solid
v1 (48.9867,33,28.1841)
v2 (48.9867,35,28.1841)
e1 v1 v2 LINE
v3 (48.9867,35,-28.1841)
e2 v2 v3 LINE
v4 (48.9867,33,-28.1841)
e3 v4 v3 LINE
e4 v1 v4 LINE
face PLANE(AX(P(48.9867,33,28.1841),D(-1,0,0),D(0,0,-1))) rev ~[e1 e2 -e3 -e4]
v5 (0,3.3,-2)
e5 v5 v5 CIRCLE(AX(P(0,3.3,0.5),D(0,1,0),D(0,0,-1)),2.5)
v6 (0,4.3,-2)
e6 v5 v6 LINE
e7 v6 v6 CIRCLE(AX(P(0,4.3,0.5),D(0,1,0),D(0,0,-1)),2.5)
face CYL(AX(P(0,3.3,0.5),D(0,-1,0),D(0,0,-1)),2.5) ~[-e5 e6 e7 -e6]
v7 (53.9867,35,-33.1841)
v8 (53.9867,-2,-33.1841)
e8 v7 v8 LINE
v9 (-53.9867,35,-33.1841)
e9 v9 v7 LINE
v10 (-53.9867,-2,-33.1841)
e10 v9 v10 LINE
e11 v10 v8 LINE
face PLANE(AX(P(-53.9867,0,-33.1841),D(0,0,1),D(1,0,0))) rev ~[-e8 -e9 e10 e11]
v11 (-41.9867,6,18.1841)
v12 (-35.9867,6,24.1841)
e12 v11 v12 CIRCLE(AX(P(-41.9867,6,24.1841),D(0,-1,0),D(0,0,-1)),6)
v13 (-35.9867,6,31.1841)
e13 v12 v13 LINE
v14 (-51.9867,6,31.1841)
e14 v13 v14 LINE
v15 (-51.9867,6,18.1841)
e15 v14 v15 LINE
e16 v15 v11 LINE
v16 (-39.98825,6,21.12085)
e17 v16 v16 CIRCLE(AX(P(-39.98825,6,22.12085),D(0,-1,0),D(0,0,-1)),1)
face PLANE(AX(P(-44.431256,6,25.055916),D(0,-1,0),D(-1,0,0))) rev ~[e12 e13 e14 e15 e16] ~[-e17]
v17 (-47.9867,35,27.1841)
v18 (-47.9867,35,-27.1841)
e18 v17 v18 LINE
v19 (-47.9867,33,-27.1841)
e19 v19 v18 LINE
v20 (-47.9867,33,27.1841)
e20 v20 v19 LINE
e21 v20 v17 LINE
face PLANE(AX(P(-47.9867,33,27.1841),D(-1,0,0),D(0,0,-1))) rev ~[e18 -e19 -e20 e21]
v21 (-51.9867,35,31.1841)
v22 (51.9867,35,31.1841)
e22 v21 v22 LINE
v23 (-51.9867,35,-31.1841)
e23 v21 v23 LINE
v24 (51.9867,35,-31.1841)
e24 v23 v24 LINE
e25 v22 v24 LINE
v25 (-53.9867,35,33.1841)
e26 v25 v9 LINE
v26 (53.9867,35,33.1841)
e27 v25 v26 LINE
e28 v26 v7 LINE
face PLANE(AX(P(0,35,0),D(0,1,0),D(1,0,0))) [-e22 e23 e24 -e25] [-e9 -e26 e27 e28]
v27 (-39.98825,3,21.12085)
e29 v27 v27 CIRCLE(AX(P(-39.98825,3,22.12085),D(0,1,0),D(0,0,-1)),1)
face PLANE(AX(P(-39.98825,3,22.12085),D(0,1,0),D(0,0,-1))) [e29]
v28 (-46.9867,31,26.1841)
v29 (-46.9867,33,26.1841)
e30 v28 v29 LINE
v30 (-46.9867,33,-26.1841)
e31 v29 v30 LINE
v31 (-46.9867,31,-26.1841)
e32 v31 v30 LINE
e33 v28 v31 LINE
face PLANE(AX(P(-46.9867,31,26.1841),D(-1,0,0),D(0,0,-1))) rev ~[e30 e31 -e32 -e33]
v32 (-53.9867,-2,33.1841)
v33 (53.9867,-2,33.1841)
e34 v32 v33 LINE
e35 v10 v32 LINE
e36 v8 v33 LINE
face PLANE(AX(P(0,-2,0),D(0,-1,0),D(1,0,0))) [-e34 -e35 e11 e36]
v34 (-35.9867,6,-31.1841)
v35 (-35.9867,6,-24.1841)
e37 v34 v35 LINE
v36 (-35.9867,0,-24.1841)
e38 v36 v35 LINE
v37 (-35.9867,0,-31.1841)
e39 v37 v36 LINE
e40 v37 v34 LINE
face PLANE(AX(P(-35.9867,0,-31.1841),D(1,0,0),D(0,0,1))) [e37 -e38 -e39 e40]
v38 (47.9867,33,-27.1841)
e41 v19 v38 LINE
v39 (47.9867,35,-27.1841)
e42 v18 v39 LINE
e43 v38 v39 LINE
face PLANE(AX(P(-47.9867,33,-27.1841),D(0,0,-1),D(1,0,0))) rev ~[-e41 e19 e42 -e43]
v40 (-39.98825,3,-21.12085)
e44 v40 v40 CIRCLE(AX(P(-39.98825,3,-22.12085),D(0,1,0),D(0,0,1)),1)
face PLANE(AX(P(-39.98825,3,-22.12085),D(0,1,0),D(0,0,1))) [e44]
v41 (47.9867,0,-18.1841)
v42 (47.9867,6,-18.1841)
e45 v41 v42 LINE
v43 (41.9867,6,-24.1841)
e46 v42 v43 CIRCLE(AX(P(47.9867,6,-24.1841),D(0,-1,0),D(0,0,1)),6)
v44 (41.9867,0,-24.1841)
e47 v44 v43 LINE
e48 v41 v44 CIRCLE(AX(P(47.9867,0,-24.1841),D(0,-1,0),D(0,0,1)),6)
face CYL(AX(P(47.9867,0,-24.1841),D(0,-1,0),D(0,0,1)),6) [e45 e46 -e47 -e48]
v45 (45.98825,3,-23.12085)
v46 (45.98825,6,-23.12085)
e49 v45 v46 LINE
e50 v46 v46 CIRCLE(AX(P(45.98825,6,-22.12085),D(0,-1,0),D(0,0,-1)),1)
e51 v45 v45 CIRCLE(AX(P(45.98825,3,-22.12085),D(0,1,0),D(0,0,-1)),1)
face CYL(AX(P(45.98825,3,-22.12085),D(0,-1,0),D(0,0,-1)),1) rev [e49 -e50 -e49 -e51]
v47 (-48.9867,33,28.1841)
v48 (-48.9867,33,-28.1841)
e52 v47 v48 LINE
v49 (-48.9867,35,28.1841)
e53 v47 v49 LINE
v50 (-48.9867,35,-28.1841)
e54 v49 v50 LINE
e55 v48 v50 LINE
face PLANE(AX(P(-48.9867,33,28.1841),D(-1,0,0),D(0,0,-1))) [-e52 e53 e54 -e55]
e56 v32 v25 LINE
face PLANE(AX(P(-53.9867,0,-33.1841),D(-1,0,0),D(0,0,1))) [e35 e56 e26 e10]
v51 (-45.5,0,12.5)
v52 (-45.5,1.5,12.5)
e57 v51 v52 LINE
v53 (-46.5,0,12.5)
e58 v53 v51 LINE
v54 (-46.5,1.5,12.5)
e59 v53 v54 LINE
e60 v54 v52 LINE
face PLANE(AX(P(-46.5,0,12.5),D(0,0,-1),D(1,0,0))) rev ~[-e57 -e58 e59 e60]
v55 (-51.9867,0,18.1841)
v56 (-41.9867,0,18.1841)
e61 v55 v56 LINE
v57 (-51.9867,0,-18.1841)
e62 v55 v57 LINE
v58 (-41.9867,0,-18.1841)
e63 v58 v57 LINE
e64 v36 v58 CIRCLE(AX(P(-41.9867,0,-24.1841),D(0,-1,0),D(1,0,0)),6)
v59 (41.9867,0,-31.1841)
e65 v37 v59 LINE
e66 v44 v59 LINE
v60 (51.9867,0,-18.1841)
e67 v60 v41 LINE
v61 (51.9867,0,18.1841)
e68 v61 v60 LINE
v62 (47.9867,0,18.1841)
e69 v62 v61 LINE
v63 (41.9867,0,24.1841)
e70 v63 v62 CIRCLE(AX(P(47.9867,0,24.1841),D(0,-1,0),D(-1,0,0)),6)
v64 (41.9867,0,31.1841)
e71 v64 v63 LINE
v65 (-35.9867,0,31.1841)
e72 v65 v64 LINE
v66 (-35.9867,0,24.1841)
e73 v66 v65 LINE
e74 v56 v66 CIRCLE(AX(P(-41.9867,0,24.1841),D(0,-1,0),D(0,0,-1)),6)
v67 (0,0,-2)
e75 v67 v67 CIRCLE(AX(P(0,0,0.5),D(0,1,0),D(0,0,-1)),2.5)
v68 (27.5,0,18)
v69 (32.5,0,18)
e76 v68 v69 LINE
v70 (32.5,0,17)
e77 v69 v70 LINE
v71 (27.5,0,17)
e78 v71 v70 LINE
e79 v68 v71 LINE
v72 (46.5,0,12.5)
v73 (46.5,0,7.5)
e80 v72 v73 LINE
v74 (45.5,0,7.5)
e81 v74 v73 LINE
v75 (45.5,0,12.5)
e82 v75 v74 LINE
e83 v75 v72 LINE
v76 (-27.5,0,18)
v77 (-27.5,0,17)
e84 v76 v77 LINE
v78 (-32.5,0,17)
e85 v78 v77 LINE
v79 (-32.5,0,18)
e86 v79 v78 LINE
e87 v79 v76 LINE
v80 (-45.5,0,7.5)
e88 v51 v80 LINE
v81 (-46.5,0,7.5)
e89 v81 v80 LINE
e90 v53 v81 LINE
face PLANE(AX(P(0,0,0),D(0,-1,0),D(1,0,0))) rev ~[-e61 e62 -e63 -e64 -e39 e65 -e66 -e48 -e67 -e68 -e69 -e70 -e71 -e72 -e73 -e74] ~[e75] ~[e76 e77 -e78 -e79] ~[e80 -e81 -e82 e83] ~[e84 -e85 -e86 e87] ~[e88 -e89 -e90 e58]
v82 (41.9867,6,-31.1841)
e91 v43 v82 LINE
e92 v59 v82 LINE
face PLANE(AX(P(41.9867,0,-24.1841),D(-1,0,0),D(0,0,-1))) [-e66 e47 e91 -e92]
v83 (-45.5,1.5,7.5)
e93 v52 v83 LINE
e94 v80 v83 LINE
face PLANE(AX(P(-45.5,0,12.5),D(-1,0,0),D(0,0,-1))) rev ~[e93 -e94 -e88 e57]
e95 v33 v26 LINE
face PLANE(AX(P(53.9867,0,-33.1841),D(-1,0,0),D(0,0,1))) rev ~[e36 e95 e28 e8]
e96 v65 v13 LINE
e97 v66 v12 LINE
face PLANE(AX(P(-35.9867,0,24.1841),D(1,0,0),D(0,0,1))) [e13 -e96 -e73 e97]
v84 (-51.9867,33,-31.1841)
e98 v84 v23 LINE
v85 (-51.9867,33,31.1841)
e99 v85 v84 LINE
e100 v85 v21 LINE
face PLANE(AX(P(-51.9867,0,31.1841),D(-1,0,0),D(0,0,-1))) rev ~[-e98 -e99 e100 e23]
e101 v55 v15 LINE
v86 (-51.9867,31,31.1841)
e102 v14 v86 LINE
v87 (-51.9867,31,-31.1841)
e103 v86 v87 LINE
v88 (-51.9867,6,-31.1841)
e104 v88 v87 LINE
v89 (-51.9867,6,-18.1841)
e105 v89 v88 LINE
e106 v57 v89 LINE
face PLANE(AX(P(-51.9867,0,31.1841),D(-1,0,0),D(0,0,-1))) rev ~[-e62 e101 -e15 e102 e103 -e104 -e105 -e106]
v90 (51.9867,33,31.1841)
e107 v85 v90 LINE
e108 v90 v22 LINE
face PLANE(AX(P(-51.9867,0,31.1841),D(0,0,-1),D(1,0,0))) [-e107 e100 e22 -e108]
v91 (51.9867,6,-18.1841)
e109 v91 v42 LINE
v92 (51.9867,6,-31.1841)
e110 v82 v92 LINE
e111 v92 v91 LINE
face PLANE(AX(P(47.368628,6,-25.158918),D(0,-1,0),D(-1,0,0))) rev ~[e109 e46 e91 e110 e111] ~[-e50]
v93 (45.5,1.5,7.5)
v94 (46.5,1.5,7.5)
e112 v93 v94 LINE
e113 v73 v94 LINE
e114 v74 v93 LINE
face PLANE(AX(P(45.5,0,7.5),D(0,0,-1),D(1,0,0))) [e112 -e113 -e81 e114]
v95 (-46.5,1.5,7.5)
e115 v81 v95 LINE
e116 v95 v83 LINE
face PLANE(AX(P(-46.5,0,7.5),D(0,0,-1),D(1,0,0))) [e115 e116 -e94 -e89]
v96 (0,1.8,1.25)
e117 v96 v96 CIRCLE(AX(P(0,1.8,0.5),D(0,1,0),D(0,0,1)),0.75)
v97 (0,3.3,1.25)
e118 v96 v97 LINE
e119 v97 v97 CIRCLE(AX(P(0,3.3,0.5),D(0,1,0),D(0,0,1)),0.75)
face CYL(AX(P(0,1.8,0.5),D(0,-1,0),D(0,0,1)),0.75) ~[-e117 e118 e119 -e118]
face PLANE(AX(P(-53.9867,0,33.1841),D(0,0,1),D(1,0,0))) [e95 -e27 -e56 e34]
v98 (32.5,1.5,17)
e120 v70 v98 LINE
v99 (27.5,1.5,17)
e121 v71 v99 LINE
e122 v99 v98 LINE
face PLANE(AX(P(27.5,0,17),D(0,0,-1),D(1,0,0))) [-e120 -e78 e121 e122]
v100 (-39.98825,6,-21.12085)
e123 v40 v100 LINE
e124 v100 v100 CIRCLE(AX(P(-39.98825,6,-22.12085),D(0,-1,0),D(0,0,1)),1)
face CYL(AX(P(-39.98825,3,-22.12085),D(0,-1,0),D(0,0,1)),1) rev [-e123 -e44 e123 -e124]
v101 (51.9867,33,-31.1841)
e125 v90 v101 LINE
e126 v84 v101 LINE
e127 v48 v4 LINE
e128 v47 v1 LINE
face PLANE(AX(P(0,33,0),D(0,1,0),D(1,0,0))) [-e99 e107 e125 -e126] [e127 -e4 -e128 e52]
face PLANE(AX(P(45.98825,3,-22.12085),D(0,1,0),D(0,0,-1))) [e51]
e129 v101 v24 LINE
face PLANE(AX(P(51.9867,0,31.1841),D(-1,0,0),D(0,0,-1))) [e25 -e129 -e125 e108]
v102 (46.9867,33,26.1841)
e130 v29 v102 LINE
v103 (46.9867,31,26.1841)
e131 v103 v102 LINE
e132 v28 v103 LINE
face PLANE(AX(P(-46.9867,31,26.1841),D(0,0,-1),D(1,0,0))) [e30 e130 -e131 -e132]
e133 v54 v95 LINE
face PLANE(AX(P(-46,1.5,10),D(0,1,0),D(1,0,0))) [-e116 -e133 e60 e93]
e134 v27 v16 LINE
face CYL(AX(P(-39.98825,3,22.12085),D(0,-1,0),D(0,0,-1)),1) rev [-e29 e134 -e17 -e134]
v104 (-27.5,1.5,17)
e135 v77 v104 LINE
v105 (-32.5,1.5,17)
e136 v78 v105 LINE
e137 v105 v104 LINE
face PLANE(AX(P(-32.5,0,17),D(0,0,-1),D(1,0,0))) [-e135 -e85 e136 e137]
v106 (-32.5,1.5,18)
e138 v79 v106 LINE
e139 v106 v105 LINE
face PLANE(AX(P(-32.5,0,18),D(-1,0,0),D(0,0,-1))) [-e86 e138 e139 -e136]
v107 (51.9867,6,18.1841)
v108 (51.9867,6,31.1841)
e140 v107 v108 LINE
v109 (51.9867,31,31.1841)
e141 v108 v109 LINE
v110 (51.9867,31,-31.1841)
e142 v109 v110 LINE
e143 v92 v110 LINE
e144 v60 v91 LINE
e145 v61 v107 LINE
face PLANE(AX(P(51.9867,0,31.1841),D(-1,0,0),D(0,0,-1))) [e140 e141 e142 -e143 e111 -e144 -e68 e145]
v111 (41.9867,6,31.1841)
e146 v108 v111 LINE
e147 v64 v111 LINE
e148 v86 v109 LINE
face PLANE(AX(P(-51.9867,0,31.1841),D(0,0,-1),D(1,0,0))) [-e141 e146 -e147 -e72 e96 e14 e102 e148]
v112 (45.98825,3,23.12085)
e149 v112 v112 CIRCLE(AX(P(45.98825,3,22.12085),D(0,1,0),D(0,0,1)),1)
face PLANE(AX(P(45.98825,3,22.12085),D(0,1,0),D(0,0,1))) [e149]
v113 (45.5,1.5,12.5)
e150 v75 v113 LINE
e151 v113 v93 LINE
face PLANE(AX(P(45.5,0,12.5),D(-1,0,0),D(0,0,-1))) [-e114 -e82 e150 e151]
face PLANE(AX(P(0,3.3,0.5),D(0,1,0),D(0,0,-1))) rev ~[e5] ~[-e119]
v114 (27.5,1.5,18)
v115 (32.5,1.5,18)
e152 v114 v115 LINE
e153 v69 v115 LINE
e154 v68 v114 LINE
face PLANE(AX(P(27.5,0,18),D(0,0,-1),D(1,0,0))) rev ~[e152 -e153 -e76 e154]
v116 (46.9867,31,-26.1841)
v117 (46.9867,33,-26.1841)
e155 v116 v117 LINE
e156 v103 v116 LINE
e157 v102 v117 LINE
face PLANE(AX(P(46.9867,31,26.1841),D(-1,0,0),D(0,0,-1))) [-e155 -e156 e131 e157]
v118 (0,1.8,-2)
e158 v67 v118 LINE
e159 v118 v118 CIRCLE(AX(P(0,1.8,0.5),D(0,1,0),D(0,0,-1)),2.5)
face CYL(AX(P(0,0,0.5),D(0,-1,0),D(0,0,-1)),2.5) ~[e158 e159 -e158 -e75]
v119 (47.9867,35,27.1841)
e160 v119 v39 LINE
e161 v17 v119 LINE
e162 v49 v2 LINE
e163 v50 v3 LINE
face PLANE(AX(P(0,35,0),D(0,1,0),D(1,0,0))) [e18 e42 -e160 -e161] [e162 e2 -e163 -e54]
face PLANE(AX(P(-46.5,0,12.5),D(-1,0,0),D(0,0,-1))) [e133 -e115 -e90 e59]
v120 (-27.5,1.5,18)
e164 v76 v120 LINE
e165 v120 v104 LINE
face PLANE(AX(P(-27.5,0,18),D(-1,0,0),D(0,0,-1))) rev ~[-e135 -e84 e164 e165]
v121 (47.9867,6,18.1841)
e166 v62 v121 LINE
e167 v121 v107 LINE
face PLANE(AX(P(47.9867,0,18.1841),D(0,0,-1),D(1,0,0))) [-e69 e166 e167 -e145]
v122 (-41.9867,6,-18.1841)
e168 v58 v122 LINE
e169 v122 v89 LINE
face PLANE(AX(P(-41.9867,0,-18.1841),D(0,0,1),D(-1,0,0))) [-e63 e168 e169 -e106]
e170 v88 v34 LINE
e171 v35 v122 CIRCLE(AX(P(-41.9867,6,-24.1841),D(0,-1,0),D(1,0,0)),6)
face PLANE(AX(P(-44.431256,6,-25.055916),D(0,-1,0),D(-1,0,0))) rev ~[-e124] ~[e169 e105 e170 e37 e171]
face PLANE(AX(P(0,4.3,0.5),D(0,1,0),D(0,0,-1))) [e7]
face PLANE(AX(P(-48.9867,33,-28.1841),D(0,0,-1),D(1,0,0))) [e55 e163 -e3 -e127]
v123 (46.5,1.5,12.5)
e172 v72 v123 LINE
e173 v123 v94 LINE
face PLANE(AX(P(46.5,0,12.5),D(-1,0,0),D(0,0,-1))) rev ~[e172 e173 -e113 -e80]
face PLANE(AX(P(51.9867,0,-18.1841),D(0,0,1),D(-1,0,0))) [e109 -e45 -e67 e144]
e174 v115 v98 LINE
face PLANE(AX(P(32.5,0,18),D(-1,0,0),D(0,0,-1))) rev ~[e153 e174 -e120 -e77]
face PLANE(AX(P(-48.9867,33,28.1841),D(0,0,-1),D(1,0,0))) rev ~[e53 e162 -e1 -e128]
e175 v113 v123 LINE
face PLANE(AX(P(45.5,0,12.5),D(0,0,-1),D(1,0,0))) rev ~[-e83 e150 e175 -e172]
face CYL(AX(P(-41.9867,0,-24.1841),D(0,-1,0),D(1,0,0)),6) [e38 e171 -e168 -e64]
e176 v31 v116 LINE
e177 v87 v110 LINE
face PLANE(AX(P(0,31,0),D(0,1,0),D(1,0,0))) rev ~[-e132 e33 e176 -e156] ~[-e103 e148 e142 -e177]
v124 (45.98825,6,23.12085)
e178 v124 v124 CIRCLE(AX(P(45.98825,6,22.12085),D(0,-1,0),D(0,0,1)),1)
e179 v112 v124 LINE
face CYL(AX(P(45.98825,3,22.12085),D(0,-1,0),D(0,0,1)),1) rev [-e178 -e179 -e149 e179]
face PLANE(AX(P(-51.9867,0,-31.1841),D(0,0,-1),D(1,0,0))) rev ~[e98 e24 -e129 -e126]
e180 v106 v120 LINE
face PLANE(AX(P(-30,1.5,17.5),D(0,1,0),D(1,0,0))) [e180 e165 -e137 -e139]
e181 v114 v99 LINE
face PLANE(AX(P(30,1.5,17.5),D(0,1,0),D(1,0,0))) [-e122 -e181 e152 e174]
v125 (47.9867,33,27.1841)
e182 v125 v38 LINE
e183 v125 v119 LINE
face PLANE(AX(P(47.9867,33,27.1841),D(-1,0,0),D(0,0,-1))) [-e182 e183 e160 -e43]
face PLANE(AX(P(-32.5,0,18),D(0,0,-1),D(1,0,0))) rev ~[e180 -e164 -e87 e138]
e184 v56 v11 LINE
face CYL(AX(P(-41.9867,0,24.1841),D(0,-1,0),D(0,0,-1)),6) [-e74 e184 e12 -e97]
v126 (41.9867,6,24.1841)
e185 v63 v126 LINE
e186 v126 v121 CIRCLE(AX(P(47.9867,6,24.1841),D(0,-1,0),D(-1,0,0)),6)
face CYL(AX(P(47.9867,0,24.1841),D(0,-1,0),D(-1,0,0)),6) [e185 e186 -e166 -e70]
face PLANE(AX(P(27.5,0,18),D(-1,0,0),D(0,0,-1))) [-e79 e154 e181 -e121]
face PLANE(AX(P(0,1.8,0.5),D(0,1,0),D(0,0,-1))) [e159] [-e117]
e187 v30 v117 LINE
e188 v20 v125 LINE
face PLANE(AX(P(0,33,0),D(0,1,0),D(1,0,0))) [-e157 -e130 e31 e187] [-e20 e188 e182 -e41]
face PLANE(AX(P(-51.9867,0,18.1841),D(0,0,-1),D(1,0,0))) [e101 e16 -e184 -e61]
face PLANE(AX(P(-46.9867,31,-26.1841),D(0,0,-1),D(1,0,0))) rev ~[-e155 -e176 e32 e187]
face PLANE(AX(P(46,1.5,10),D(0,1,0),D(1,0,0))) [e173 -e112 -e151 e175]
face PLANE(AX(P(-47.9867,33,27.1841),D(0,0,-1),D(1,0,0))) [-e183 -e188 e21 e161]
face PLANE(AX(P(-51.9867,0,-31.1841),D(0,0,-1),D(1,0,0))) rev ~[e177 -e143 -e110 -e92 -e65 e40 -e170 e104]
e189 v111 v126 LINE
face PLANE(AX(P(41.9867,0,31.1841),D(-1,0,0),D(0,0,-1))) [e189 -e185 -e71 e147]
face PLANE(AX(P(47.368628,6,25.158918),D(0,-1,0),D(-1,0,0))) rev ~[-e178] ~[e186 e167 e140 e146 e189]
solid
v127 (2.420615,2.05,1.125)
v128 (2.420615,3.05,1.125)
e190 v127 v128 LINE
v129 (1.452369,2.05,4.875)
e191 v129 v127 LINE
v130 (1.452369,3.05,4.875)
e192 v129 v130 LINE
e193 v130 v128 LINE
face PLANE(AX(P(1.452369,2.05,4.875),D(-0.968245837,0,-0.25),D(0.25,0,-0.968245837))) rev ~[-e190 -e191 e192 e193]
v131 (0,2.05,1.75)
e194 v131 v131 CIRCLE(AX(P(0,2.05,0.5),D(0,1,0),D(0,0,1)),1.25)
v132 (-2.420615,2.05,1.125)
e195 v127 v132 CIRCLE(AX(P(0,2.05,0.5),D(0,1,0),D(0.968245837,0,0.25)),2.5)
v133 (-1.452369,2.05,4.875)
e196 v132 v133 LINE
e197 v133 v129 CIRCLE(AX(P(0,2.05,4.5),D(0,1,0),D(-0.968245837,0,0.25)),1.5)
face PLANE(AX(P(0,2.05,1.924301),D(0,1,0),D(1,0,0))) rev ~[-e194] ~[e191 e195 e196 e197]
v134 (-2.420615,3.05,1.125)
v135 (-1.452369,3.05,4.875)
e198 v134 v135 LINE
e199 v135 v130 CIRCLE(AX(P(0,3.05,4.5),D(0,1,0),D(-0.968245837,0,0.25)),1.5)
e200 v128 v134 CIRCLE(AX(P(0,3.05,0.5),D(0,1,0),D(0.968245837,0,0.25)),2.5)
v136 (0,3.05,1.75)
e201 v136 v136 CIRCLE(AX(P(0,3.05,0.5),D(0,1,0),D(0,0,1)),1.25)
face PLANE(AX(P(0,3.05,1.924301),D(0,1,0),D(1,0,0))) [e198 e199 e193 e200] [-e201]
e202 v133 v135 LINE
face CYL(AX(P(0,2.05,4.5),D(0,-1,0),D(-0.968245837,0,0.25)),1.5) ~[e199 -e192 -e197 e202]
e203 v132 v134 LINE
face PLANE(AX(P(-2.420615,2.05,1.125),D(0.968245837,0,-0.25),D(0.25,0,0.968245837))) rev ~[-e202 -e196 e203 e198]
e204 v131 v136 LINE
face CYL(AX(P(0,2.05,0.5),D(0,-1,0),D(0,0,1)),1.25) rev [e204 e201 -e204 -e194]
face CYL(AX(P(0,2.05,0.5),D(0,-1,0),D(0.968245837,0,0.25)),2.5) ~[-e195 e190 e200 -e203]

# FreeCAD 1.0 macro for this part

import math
import FreeCAD as App
import Part
import Sketcher

V = App.Vector

doc = App.newDocument("Part")
body = doc.addObject("PartDesign::Body", "Body")

# Sketch on XZ plane
sketch1 = doc.addObject("Sketcher::SketchObject", "Sketch")
body.addObject(sketch1)
sketch1.AttachmentSupport = (doc.XZ_Plane, [""])
sketch1.MapMode = "FlatFace"
sketch1.addGeometry([
    Part.LineSegment(V(-53.9867, -33.1841, 0), V(-53.9867, 33.1841, 0)),  # 0
    Part.LineSegment(V(-53.9867, 33.1841, 0), V(53.9867, 33.1841, 0)),  # 1
    Part.LineSegment(V(53.9867, 33.1841, 0), V(53.9867, -33.1841, 0)),  # 2
    Part.LineSegment(V(53.9867, -33.1841, 0), V(-53.9867, -33.1841, 0)),  # 3
    Part.LineSegment(V(51.9867, 31.1841, 0), V(-51.9867, 31.1841, 0)),  # 4
    Part.LineSegment(V(-51.9867, 31.1841, 0), V(-51.9867, -31.1841, 0)),  # 5
    Part.LineSegment(V(-51.9867, -31.1841, 0), V(51.9867, -31.1841, 0)),  # 6
    Part.LineSegment(V(51.9867, -31.1841, 0), V(51.9867, 31.1841, 0)),  # 7
], False)
sketch1.addConstraint([
    Sketcher.Constraint("Coincident", 0, 2, 1, 1),
    Sketcher.Constraint("Coincident", 1, 2, 2, 1),
    Sketcher.Constraint("Coincident", 2, 2, 3, 1),
    Sketcher.Constraint("Coincident", 3, 2, 0, 1),
    Sketcher.Constraint("Coincident", 4, 2, 5, 1),
    Sketcher.Constraint("Coincident", 5, 2, 6, 1),
    Sketcher.Constraint("Coincident", 6, 2, 7, 1),
    Sketcher.Constraint("Coincident", 7, 2, 4, 1),
    Sketcher.Constraint("Vertical", 0),
    Sketcher.Constraint("Horizontal", 1),
    Sketcher.Constraint("Vertical", 2),
    Sketcher.Constraint("Horizontal", 3),
    Sketcher.Constraint("Horizontal", 4),
    Sketcher.Constraint("Vertical", 5),
    Sketcher.Constraint("Horizontal", 6),
    Sketcher.Constraint("Vertical", 7),
    Sketcher.Constraint("Symmetric", 0, 2, 2, 2, -1, 1),
    Sketcher.Constraint("Symmetric", 4, 2, 6, 2, -1, 1),
    Sketcher.Constraint("DistanceX", 0, 2, 4, 2, 2.0),
    Sketcher.Constraint("DistanceY", 4, 2, 0, 2, 2.0),
    Sketcher.Constraint("DistanceX", 1, 1, 1, 2, 107.9734),
    Sketcher.Constraint("DistanceY", 0, 1, 0, 2, 66.3682),
])
pad1 = doc.addObject("PartDesign::Pad", "Pad")
body.addObject(pad1)
pad1.Profile = sketch1
pad1.Length = 35
pad1.Reversed = True

# Sketch on XZ plane
sketch2 = doc.addObject("Sketcher::SketchObject", "Sketch001")
body.addObject(sketch2)
sketch2.AttachmentSupport = (doc.XZ_Plane, [""])
sketch2.MapMode = "FlatFace"
sketch2.addGeometry([
    Part.LineSegment(V(-53.9867, 33.1841, 0), V(-53.9867, -33.1841, 0)),
    Part.LineSegment(V(-53.9867, -33.1841, 0), V(53.9867, -33.1841, 0)),
    Part.LineSegment(V(53.9867, -33.1841, 0), V(53.9867, 33.1841, 0)),
    Part.LineSegment(V(53.9867, 33.1841, 0), V(-53.9867, 33.1841, 0)),
], False)
sketch2.addConstraint([
    Sketcher.Constraint("Coincident", 0, 2, 1, 1),
    Sketcher.Constraint("Coincident", 1, 2, 2, 1),
    Sketcher.Constraint("Coincident", 2, 2, 3, 1),
    Sketcher.Constraint("Coincident", 3, 2, 0, 1),
    Sketcher.Constraint("Vertical", 0),
    Sketcher.Constraint("Horizontal", 1),
    Sketcher.Constraint("Vertical", 2),
    Sketcher.Constraint("Horizontal", 3),
    Sketcher.Constraint("Symmetric", 0, 2, 2, 2, -1, 1),
    Sketcher.Constraint("DistanceX", 1, 1, 1, 2, 107.9734),
    Sketcher.Constraint("DistanceY", 0, 2, 0, 1, 66.3682),
])
pad2 = doc.addObject("PartDesign::Pad", "Pad001")
body.addObject(pad2)
pad2.Profile = sketch2
pad2.Length = 2

# Sketch on XZ plane
sketch3 = doc.addObject("Sketcher::SketchObject", "Sketch002")
body.addObject(sketch3)
sketch3.AttachmentSupport = (doc.XZ_Plane, [""])
sketch3.MapMode = "FlatFace"
sketch3.addGeometry([
    Part.LineSegment(V(-51.9867, -31.1841, 0), V(-51.9867, -18.1841, 0)),  # 0
    Part.LineSegment(V(-51.9867, -18.1841, 0), V(-41.9867, -18.1841, 0)),  # 1
    Part.ArcOfCircle(Part.Circle(V(-41.9867, -24.1841, 0), V(0, 0, 1), 6), math.radians(0), math.radians(90)),  # 2
    Part.LineSegment(V(-35.9867, -24.1841, 0), V(-35.9867, -31.1841, 0)),  # 3
    Part.LineSegment(V(-35.9867, -31.1841, 0), V(-51.9867, -31.1841, 0)),  # 4
    Part.LineSegment(V(47.9867, -18.1841, 0), V(51.9867, -18.1841, 0)),  # 5
    Part.LineSegment(V(51.9867, -18.1841, 0), V(51.9867, -31.1841, 0)),  # 6
    Part.LineSegment(V(51.9867, -31.1841, 0), V(41.9867, -31.1841, 0)),  # 7
    Part.LineSegment(V(41.9867, -31.1841, 0), V(41.9867, -24.1841, 0)),  # 8
    Part.ArcOfCircle(Part.Circle(V(47.9867, -24.1841, 0), V(0, 0, 1), 6), math.radians(90), math.radians(180)),  # 9
    Part.LineSegment(V(41.9867, 24.1841, 0), V(41.9867, 31.1841, 0)),  # 10
    Part.LineSegment(V(41.9867, 31.1841, 0), V(51.9867, 31.1841, 0)),  # 11
    Part.LineSegment(V(51.9867, 31.1841, 0), V(51.9867, 18.1841, 0)),  # 12
    Part.LineSegment(V(51.9867, 18.1841, 0), V(47.9867, 18.1841, 0)),  # 13
    Part.ArcOfCircle(Part.Circle(V(47.9867, 24.1841, 0), V(0, 0, 1), 6), math.radians(180), math.radians(270)),  # 14
    Part.LineSegment(V(-41.9867, 18.1841, 0), V(-51.9867, 18.1841, 0)),  # 15
    Part.LineSegment(V(-51.9867, 18.1841, 0), V(-51.9867, 31.1841, 0)),  # 16
    Part.LineSegment(V(-51.9867, 31.1841, 0), V(-35.9867, 31.1841, 0)),  # 17
    Part.LineSegment(V(-35.9867, 31.1841, 0), V(-35.9867, 24.1841, 0)),  # 18
    Part.ArcOfCircle(Part.Circle(V(-41.9867, 24.1841, 0), V(0, 0, 1), 6), math.radians(-90), math.radians(0)),  # 19
], False)
sketch3.addConstraint([
    Sketcher.Constraint("Coincident", 0, 2, 1, 1),
    Sketcher.Constraint("Tangent", 1, 2, 2, 2),
    Sketcher.Constraint("Tangent", 2, 1, 3, 1),
    Sketcher.Constraint("Coincident", 3, 2, 4, 1),
    Sketcher.Constraint("Coincident", 4, 2, 0, 1),
    Sketcher.Constraint("Coincident", 5, 2, 6, 1),
    Sketcher.Constraint("Coincident", 6, 2, 7, 1),
    Sketcher.Constraint("Coincident", 7, 2, 8, 1),
    Sketcher.Constraint("Tangent", 8, 2, 9, 2),
    Sketcher.Constraint("Tangent", 9, 1, 5, 1),
    Sketcher.Constraint("Coincident", 10, 2, 11, 1),
    Sketcher.Constraint("Coincident", 11, 2, 12, 1),
    Sketcher.Constraint("Coincident", 12, 2, 13, 1),
    Sketcher.Constraint("Tangent", 13, 2, 14, 2),
    Sketcher.Constraint("Tangent", 14, 1, 10, 1),
    Sketcher.Constraint("Coincident", 15, 2, 16, 1),
    Sketcher.Constraint("Coincident", 16, 2, 17, 1),
    Sketcher.Constraint("Coincident", 17, 2, 18, 1),
    Sketcher.Constraint("Tangent", 18, 2, 19, 2),
    Sketcher.Constraint("Tangent", 19, 1, 15, 1),
    Sketcher.Constraint("Vertical", 0),
    Sketcher.Constraint("Horizontal", 1),
    Sketcher.Constraint("Vertical", 3),
    Sketcher.Constraint("Horizontal", 4),
    Sketcher.Constraint("Horizontal", 5),
    Sketcher.Constraint("Vertical", 6),
    Sketcher.Constraint("Horizontal", 7),
    Sketcher.Constraint("Vertical", 8),
    Sketcher.Constraint("Vertical", 10),
    Sketcher.Constraint("Horizontal", 11),
    Sketcher.Constraint("Vertical", 12),
    Sketcher.Constraint("Horizontal", 13),
    Sketcher.Constraint("Horizontal", 15),
    Sketcher.Constraint("Vertical", 16),
    Sketcher.Constraint("Horizontal", 17),
    Sketcher.Constraint("Vertical", 18),
    Sketcher.Constraint("Equal", 2, 9),
    Sketcher.Constraint("Equal", 9, 14),
    Sketcher.Constraint("Equal", 14, 19),
    Sketcher.Constraint("Symmetric", 4, 2, 11, 2, -1, 1),
    Sketcher.Constraint("Symmetric", 5, 2, 15, 2, -1, 1),
    Sketcher.Constraint("Symmetric", 0, 2, 5, 2, -2),
    Sketcher.Constraint("Symmetric", 9, 3, 14, 3, -1),
    Sketcher.Constraint("Symmetric", 3, 2, 17, 2, -1),
    Sketcher.Constraint("Horizontal", 4, 2, 6, 2),
    Sketcher.Constraint("Equal", 1, 7),
    Sketcher.Constraint("Radius", 2, 6.0),
    Sketcher.Constraint("DistanceX", 1, 1, 1, 2, 10.0),
    Sketcher.Constraint("DistanceY", 0, 1, 0, 2, 13.0),
    Sketcher.Constraint("DistanceX", 2, 3, -1, 1, 41.9867),
    Sketcher.Constraint("DistanceY", 2, 3, -1, 1, 24.1841),
])
pad3 = doc.addObject("PartDesign::Pad", "Pad002")
body.addObject(pad3)
pad3.Profile = sketch3
pad3.Length = 6
pad3.Reversed = True

# Sketch on XZ plane
sketch4 = doc.addObject("Sketcher::SketchObject", "Sketch003")
body.addObject(sketch4)
sketch4.AttachmentSupport = (doc.XZ_Plane, [""])
sketch4.MapMode = "FlatFace"
sketch4.AttachmentOffset = App.Placement(V(0, 0, -3), App.Rotation())
sketch4.addGeometry(Part.Circle(V(-39.98825, -22.12085, 0), V(0, 0, 1), 1), False)
sketch4.addConstraint([
    Sketcher.Constraint("Diameter", 0, 2.0),
    Sketcher.Constraint("DistanceX", 0, 3, -1, 1, 39.98825),
    Sketcher.Constraint("DistanceY", 0, 3, -1, 1, 22.12085),
])
pocket1 = doc.addObject("PartDesign::Pocket", "Pocket")
body.addObject(pocket1)
pocket1.Profile = sketch4
pocket1.Type = "UpToFirst"

# Sketch on XZ plane
sketch5 = doc.addObject("Sketcher::SketchObject", "Sketch004")
body.addObject(sketch5)
sketch5.AttachmentSupport = (doc.XZ_Plane, [""])
sketch5.MapMode = "FlatFace"
sketch5.AttachmentOffset = App.Placement(V(0, 0, -3), App.Rotation())
sketch5.addGeometry(Part.Circle(V(45.98825, -22.12085, 0), V(0, 0, 1), 1), False)
sketch5.addConstraint([
    Sketcher.Constraint("Diameter", 0, 2.0),
    Sketcher.Constraint("DistanceX", -1, 1, 0, 3, 45.98825),
    Sketcher.Constraint("DistanceY", 0, 3, -1, 1, 22.12085),
])
pocket2 = doc.addObject("PartDesign::Pocket", "Pocket001")
body.addObject(pocket2)
pocket2.Profile = sketch5
pocket2.Type = "UpToFirst"

# Sketch on XZ plane
sketch6 = doc.addObject("Sketcher::SketchObject", "Sketch005")
body.addObject(sketch6)
sketch6.AttachmentSupport = (doc.XZ_Plane, [""])
sketch6.MapMode = "FlatFace"
sketch6.AttachmentOffset = App.Placement(V(0, 0, -3), App.Rotation())
sketch6.addGeometry(Part.Circle(V(45.98825, 22.12085, 0), V(0, 0, 1), 1), False)
sketch6.addConstraint([
    Sketcher.Constraint("Diameter", 0, 2.0),
    Sketcher.Constraint("DistanceX", -1, 1, 0, 3, 45.98825),
    Sketcher.Constraint("DistanceY", -1, 1, 0, 3, 22.12085),
])
pocket3 = doc.addObject("PartDesign::Pocket", "Pocket002")
body.addObject(pocket3)
pocket3.Profile = sketch6
pocket3.Type = "UpToFirst"

# Sketch on XZ plane
sketch7 = doc.addObject("Sketcher::SketchObject", "Sketch006")
body.addObject(sketch7)
sketch7.AttachmentSupport = (doc.XZ_Plane, [""])
sketch7.MapMode = "FlatFace"
sketch7.AttachmentOffset = App.Placement(V(0, 0, -3), App.Rotation())
sketch7.addGeometry(Part.Circle(V(-39.98825, 22.12085, 0), V(0, 0, 1), 1), False)
sketch7.addConstraint([
    Sketcher.Constraint("Diameter", 0, 2.0),
    Sketcher.Constraint("DistanceX", 0, 3, -1, 1, 39.98825),
    Sketcher.Constraint("DistanceY", -1, 1, 0, 3, 22.12085),
])
pocket4 = doc.addObject("PartDesign::Pocket", "Pocket003")
body.addObject(pocket4)
pocket4.Profile = sketch7
pocket4.Type = "UpToFirst"

# Sketch on XZ plane
sketch8 = doc.addObject("Sketcher::SketchObject", "Sketch007")
body.addObject(sketch8)
sketch8.AttachmentSupport = (doc.XZ_Plane, [""])
sketch8.MapMode = "FlatFace"
sketch8.AttachmentOffset = App.Placement(V(0, 0, -31), App.Rotation())
sketch8.addGeometry([
    Part.LineSegment(V(-51.9867, -31.1841, 0), V(-51.9867, 31.1841, 0)),  # 0
    Part.LineSegment(V(-51.9867, 31.1841, 0), V(51.9867, 31.1841, 0)),  # 1
    Part.LineSegment(V(51.9867, 31.1841, 0), V(51.9867, -31.1841, 0)),  # 2
    Part.LineSegment(V(51.9867, -31.1841, 0), V(-51.9867, -31.1841, 0)),  # 3
    Part.LineSegment(V(46.9867, 26.1841, 0), V(-46.9867, 26.1841, 0)),  # 4
    Part.LineSegment(V(-46.9867, 26.1841, 0), V(-46.9867, -26.1841, 0)),  # 5
    Part.LineSegment(V(-46.9867, -26.1841, 0), V(46.9867, -26.1841, 0)),  # 6
    Part.LineSegment(V(46.9867, -26.1841, 0), V(46.9867, 26.1841, 0)),  # 7
], False)
sketch8.addConstraint([
    Sketcher.Constraint("Coincident", 0, 2, 1, 1),
    Sketcher.Constraint("Coincident", 1, 2, 2, 1),
    Sketcher.Constraint("Coincident", 2, 2, 3, 1),
    Sketcher.Constraint("Coincident", 3, 2, 0, 1),
    Sketcher.Constraint("Coincident", 4, 2, 5, 1),
    Sketcher.Constraint("Coincident", 5, 2, 6, 1),
    Sketcher.Constraint("Coincident", 6, 2, 7, 1),
    Sketcher.Constraint("Coincident", 7, 2, 4, 1),
    Sketcher.Constraint("Vertical", 0),
    Sketcher.Constraint("Horizontal", 1),
    Sketcher.Constraint("Vertical", 2),
    Sketcher.Constraint("Horizontal", 3),
    Sketcher.Constraint("Horizontal", 4),
    Sketcher.Constraint("Vertical", 5),
    Sketcher.Constraint("Horizontal", 6),
    Sketcher.Constraint("Vertical", 7),
    Sketcher.Constraint("Symmetric", 0, 2, 2, 2, -1, 1),
    Sketcher.Constraint("Symmetric", 4, 2, 6, 2, -1, 1),
    Sketcher.Constraint("DistanceX", 0, 2, 4, 2, 5.0),
    Sketcher.Constraint("DistanceY", 4, 2, 0, 2, 5.0),
    Sketcher.Constraint("DistanceX", 1, 1, 1, 2, 103.9734),
    Sketcher.Constraint("DistanceY", 0, 1, 0, 2, 62.3682),
])
pad4 = doc.addObject("PartDesign::Pad", "Pad003")
body.addObject(pad4)
pad4.Profile = sketch8
pad4.Length = 2
pad4.Reversed = True

# Sketch on XZ plane
sketch9 = doc.addObject("Sketcher::SketchObject", "Sketch008")
body.addObject(sketch9)
sketch9.AttachmentSupport = (doc.XZ_Plane, [""])
sketch9.MapMode = "FlatFace"
sketch9.AttachmentOffset = App.Placement(V(0, 0, -33), App.Rotation())
sketch9.addGeometry([
    Part.LineSegment(V(-48.9867, -28.1841, 0), V(-48.9867, 28.1841, 0)),  # 0
    Part.LineSegment(V(-48.9867, 28.1841, 0), V(48.9867, 28.1841, 0)),  # 1
    Part.LineSegment(V(48.9867, 28.1841, 0), V(48.9867, -28.1841, 0)),  # 2
    Part.LineSegment(V(48.9867, -28.1841, 0), V(-48.9867, -28.1841, 0)),  # 3
    Part.LineSegment(V(47.9867, 27.1841, 0), V(-47.9867, 27.1841, 0)),  # 4
    Part.LineSegment(V(-47.9867, 27.1841, 0), V(-47.9867, -27.1841, 0)),  # 5
    Part.LineSegment(V(-47.9867, -27.1841, 0), V(47.9867, -27.1841, 0)),  # 6
    Part.LineSegment(V(47.9867, -27.1841, 0), V(47.9867, 27.1841, 0)),  # 7
], False)
sketch9.addConstraint([
    Sketcher.Constraint("Coincident", 0, 2, 1, 1),
    Sketcher.Constraint("Coincident", 1, 2, 2, 1),
    Sketcher.Constraint("Coincident", 2, 2, 3, 1),
    Sketcher.Constraint("Coincident", 3, 2, 0, 1),
    Sketcher.Constraint("Coincident", 4, 2, 5, 1),
    Sketcher.Constraint("Coincident", 5, 2, 6, 1),
    Sketcher.Constraint("Coincident", 6, 2, 7, 1),
    Sketcher.Constraint("Coincident", 7, 2, 4, 1),
    Sketcher.Constraint("Vertical", 0),
    Sketcher.Constraint("Horizontal", 1),
    Sketcher.Constraint("Vertical", 2),
    Sketcher.Constraint("Horizontal", 3),
    Sketcher.Constraint("Horizontal", 4),
    Sketcher.Constraint("Vertical", 5),
    Sketcher.Constraint("Horizontal", 6),
    Sketcher.Constraint("Vertical", 7),
    Sketcher.Constraint("Symmetric", 0, 2, 2, 2, -1, 1),
    Sketcher.Constraint("Symmetric", 4, 2, 6, 2, -1, 1),
    Sketcher.Constraint("DistanceX", 0, 2, 4, 2, 1.0),
    Sketcher.Constraint("DistanceY", 4, 2, 0, 2, 1.0),
    Sketcher.Constraint("DistanceX", 1, 1, 1, 2, 97.9734),
    Sketcher.Constraint("DistanceY", 0, 1, 0, 2, 56.3682),
])
pad5 = doc.addObject("PartDesign::Pad", "Pad004")
body.addObject(pad5)
pad5.Profile = sketch9
pad5.Length = 2
pad5.Reversed = True

# Sketch on XZ plane
sketch10 = doc.addObject("Sketcher::SketchObject", "Sketch009")
body.addObject(sketch10)
sketch10.AttachmentSupport = (doc.XZ_Plane, [""])
sketch10.MapMode = "FlatFace"
sketch10.addGeometry([
    Part.LineSegment(V(-46.5, 7.5, 0), V(-46.5, 12.5, 0)),  # 0
    Part.LineSegment(V(-46.5, 12.5, 0), V(-45.5, 12.5, 0)),  # 1
    Part.LineSegment(V(-45.5, 12.5, 0), V(-45.5, 7.5, 0)),  # 2
    Part.LineSegment(V(-45.5, 7.5, 0), V(-46.5, 7.5, 0)),  # 3
    Part.LineSegment(V(45.5, 7.5, 0), V(45.5, 12.5, 0)),  # 4
    Part.LineSegment(V(45.5, 12.5, 0), V(46.5, 12.5, 0)),  # 5
    Part.LineSegment(V(46.5, 12.5, 0), V(46.5, 7.5, 0)),  # 6
    Part.LineSegment(V(46.5, 7.5, 0), V(45.5, 7.5, 0)),  # 7
    Part.LineSegment(V(-32.5, 17, 0), V(-32.5, 18, 0)),  # 8
    Part.LineSegment(V(-32.5, 18, 0), V(-27.5, 18, 0)),  # 9
    Part.LineSegment(V(-27.5, 18, 0), V(-27.5, 17, 0)),  # 10
    Part.LineSegment(V(-27.5, 17, 0), V(-32.5, 17, 0)),  # 11
    Part.LineSegment(V(27.5, 17, 0), V(27.5, 18, 0)),  # 12
    Part.LineSegment(V(27.5, 18, 0), V(32.5, 18, 0)),  # 13
    Part.LineSegment(V(32.5, 18, 0), V(32.5, 17, 0)),  # 14
    Part.LineSegment(V(32.5, 17, 0), V(27.5, 17, 0)),  # 15
], False)
sketch10.addConstraint([
    Sketcher.Constraint("Coincident", 0, 2, 1, 1),
    Sketcher.Constraint("Coincident", 1, 2, 2, 1),
    Sketcher.Constraint("Coincident", 2, 2, 3, 1),
    Sketcher.Constraint("Coincident", 3, 2, 0, 1),
    Sketcher.Constraint("Coincident", 4, 2, 5, 1),
    Sketcher.Constraint("Coincident", 5, 2, 6, 1),
    Sketcher.Constraint("Coincident", 6, 2, 7, 1),
    Sketcher.Constraint("Coincident", 7, 2, 4, 1),
    Sketcher.Constraint("Coincident", 8, 2, 9, 1),
    Sketcher.Constraint("Coincident", 9, 2, 10, 1),
    Sketcher.Constraint("Coincident", 10, 2, 11, 1),
    Sketcher.Constraint("Coincident", 11, 2, 8, 1),
    Sketcher.Constraint("Coincident", 12, 2, 13, 1),
    Sketcher.Constraint("Coincident", 13, 2, 14, 1),
    Sketcher.Constraint("Coincident", 14, 2, 15, 1),
    Sketcher.Constraint("Coincident", 15, 2, 12, 1),
    Sketcher.Constraint("Vertical", 0),
    Sketcher.Constraint("Horizontal", 1),
    Sketcher.Constraint("Vertical", 2),
    Sketcher.Constraint("Horizontal", 3),
    Sketcher.Constraint("Vertical", 4),
    Sketcher.Constraint("Horizontal", 5),
    Sketcher.Constraint("Vertical", 6),
    Sketcher.Constraint("Horizontal", 7),
    Sketcher.Constraint("Vertical", 8),
    Sketcher.Constraint("Horizontal", 9),
    Sketcher.Constraint("Vertical", 10),
    Sketcher.Constraint("Horizontal", 11),
    Sketcher.Constraint("Vertical", 12),
    Sketcher.Constraint("Horizontal", 13),
    Sketcher.Constraint("Vertical", 14),
    Sketcher.Constraint("Horizontal", 15),
    Sketcher.Constraint("Symmetric", 1, 2, 4, 2, -2),
    Sketcher.Constraint("Symmetric", 3, 2, 6, 2, -2),
    Sketcher.Constraint("Symmetric", 9, 2, 12, 2, -2),
    Sketcher.Constraint("Symmetric", 11, 2, 14, 2, -2),
    Sketcher.Constraint("Equal", 15, 0),
    Sketcher.Constraint("Equal", 7, 8),
    Sketcher.Constraint("DistanceX", 1, 1, 1, 2, 1.0),
    Sketcher.Constraint("DistanceX", 9, 1, 9, 2, 5.0),
    Sketcher.Constraint("DistanceY", -1, 1, 8, 2, 18.0),
    Sketcher.Constraint("DistanceX", 1, 2, 4, 2, 91.0),
    Sketcher.Constraint("DistanceX", 1, 2, 8, 2, 13.0),
    Sketcher.Constraint("DistanceY", -1, 1, 0, 2, 12.5),
])
pad6 = doc.addObject("PartDesign::Pad", "Pad005")
body.addObject(pad6)
pad6.Profile = sketch10
pad6.Length = 1.5
pad6.Reversed = True

# Sketch on XZ plane
sketch11 = doc.addObject("Sketcher::SketchObject", "Sketch010")
body.addObject(sketch11)
sketch11.AttachmentSupport = (doc.XZ_Plane, [""])
sketch11.MapMode = "FlatFace"
sketch11.addGeometry(Part.Circle(V(0, 0.5, 0), V(0, 0, 1), 2.5), False)
sketch11.addConstraint([
    Sketcher.Constraint("PointOnObject", 0, 3, -2),
    Sketcher.Constraint("Diameter", 0, 5.0),
    Sketcher.Constraint("DistanceY", -1, 1, 0, 3, 0.5),
])
pad7 = doc.addObject("PartDesign::Pad", "Pad006")
body.addObject(pad7)
pad7.Profile = sketch11
pad7.Length = 1.8
pad7.Reversed = True

# Sketch on XZ plane
sketch12 = doc.addObject("Sketcher::SketchObject", "Sketch011")
body.addObject(sketch12)
sketch12.AttachmentSupport = (doc.XZ_Plane, [""])
sketch12.MapMode = "FlatFace"
sketch12.AttachmentOffset = App.Placement(V(0, 0, -1.8), App.Rotation())
sketch12.addGeometry(Part.Circle(V(0, 0.5, 0), V(0, 0, 1), 0.75), False)
sketch12.addConstraint([
    Sketcher.Constraint("PointOnObject", 0, 3, -2),
    Sketcher.Constraint("Diameter", 0, 1.5),
    Sketcher.Constraint("DistanceY", -1, 1, 0, 3, 0.5),
])
pad8 = doc.addObject("PartDesign::Pad", "Pad007")
body.addObject(pad8)
pad8.Profile = sketch12
pad8.Length = 1.5
pad8.Reversed = True

# Sketch on XZ plane
sketch13 = doc.addObject("Sketcher::SketchObject", "Sketch012")
body.addObject(sketch13)
sketch13.AttachmentSupport = (doc.XZ_Plane, [""])
sketch13.MapMode = "FlatFace"
sketch13.AttachmentOffset = App.Placement(V(0, 0, -3.3), App.Rotation())
sketch13.addGeometry(Part.Circle(V(0, 0.5, 0), V(0, 0, 1), 2.5), False)
sketch13.addConstraint([
    Sketcher.Constraint("PointOnObject", 0, 3, -2),
    Sketcher.Constraint("Diameter", 0, 5.0),
    Sketcher.Constraint("DistanceY", -1, 1, 0, 3, 0.5),
])
pad9 = doc.addObject("PartDesign::Pad", "Pad008")
body.addObject(pad9)
pad9.Profile = sketch13
pad9.Length = 1
pad9.Reversed = True
body2 = doc.addObject("PartDesign::Body", "Body001")

# Sketch on XZ plane
sketch14 = doc.addObject("Sketcher::SketchObject", "Sketch013")
body2.addObject(sketch14)
sketch14.AttachmentSupport = (doc.getObject("XZ_Plane001"), [""])
sketch14.MapMode = "FlatFace"
sketch14.AttachmentOffset = App.Placement(V(0, 0, -2.05), App.Rotation())
sketch14.addGeometry([
    Part.LineSegment(V(-2.420615, 1.125, 0), V(-1.452369, 4.875, 0)),  # 0
    Part.ArcOfCircle(Part.Circle(V(0, 4.5, 0), V(0, 0, 1), 1.5), math.radians(14.477512), math.radians(165.522488)),  # 1
    Part.LineSegment(V(1.452369, 4.875, 0), V(2.420615, 1.125, 0)),  # 2
    Part.ArcOfCircle(Part.Circle(V(0, 0.5, 0), V(0, 0, 1), 2.5), math.radians(165.522488), math.radians(374.477512)),  # 3
    Part.Circle(V(0, 0.5, 0), V(0, 0, 1), 1.25),  # 4
], False)
sketch14.addConstraint([
    Sketcher.Constraint("Tangent", 0, 2, 1, 2),
    Sketcher.Constraint("Tangent", 1, 1, 2, 1),
    Sketcher.Constraint("Tangent", 2, 2, 3, 2),
    Sketcher.Constraint("Tangent", 3, 1, 0, 1),
    Sketcher.Constraint("Coincident", 4, 3, 3, 3),
    Sketcher.Constraint("Symmetric", 0, 2, 1, 1, -2),
    Sketcher.Constraint("Diameter", 4, 2.5),
    Sketcher.Constraint("Radius", 1, 1.5),
    Sketcher.Constraint("Radius", 3, 2.5),
    Sketcher.Constraint("DistanceY", 3, 3, 1, 3, 4.0),
    Sketcher.Constraint("DistanceY", -1, 1, 1, 3, 4.5),
])
pad10 = doc.addObject("PartDesign::Pad", "Pad009")
body2.addObject(pad10)
pad10.Profile = sketch14
pad10.Length = 1
pad10.Reversed = True

doc.recompute()
